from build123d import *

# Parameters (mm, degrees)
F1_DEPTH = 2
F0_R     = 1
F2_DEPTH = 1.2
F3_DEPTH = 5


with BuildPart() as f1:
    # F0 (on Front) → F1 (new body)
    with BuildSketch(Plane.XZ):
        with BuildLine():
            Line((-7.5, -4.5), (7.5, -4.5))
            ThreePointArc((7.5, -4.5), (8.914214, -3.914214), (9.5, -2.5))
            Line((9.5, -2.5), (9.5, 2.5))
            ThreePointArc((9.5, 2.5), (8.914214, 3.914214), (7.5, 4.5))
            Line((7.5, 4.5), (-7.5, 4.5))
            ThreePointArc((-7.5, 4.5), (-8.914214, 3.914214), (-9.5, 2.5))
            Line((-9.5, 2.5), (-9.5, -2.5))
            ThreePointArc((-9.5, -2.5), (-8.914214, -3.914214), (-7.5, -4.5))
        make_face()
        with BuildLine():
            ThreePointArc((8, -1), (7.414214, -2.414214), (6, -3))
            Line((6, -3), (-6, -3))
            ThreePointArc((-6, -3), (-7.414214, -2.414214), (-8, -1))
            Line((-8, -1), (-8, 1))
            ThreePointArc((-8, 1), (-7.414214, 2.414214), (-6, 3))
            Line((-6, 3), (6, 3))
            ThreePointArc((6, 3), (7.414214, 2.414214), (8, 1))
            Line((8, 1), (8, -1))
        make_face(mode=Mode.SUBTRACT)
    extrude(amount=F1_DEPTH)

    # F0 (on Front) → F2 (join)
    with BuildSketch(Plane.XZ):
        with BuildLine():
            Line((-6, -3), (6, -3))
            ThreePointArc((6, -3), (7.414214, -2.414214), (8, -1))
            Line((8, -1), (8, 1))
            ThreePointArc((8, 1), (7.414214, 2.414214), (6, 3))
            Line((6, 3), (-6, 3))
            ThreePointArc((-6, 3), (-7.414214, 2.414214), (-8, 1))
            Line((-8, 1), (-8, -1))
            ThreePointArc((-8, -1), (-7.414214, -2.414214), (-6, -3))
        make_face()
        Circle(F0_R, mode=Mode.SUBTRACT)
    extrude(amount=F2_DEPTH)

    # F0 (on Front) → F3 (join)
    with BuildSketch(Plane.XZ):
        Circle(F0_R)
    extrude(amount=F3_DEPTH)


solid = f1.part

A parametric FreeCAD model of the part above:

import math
import FreeCAD as App
import Part
import Sketcher
Q = App.Units.Quantity

doc = App.newDocument("Part")
body = doc.addObject("PartDesign::Body", "Body")

# Sketch on XZ plane
sketch1 = doc.addObject("Sketcher::SketchObject", "Sketch")
body.addObject(sketch1)
sketch1.AttachmentSupport = (doc.XZ_Plane, [""])
sketch1.MapMode = "FlatFace"
sketch1.addGeometry(Part.LineSegment(App.Vector(-7.5, -4.5, 0), App.Vector(7.5, -4.5, 0)), False)
sketch1.addGeometry(Part.ArcOfCircle(Part.Circle(App.Vector(7.5, -2.5, 0), App.Vector(0, 0, 1), 2), math.radians(-90), math.radians(0)), False)
sketch1.addGeometry(Part.LineSegment(App.Vector(9.5, -2.5, 0), App.Vector(9.5, 2.5, 0)), False)
sketch1.addGeometry(Part.ArcOfCircle(Part.Circle(App.Vector(7.5, 2.5, 0), App.Vector(0, 0, 1), 2), math.radians(0), math.radians(90)), False)
sketch1.addGeometry(Part.LineSegment(App.Vector(7.5, 4.5, 0), App.Vector(-7.5, 4.5, 0)), False)
sketch1.addGeometry(Part.ArcOfCircle(Part.Circle(App.Vector(-7.5, 2.5, 0), App.Vector(0, 0, 1), 2), math.radians(90), math.radians(180)), False)
sketch1.addGeometry(Part.LineSegment(App.Vector(-9.5, 2.5, 0), App.Vector(-9.5, -2.5, 0)), False)
sketch1.addGeometry(Part.ArcOfCircle(Part.Circle(App.Vector(-7.5, -2.5, 0), App.Vector(0, 0, 1), 2), math.radians(180), math.radians(270)), False)
sketch1.addGeometry(Part.LineSegment(App.Vector(8, 1, 0), App.Vector(8, -1, 0)), False)
sketch1.addGeometry(Part.ArcOfCircle(Part.Circle(App.Vector(6, -1, 0), App.Vector(0, 0, 1), 2), math.radians(-90), math.radians(0)), False)
sketch1.addGeometry(Part.LineSegment(App.Vector(6, -3, 0), App.Vector(-6, -3, 0)), False)
sketch1.addGeometry(Part.ArcOfCircle(Part.Circle(App.Vector(-6, -1, 0), App.Vector(0, 0, 1), 2), math.radians(180), math.radians(270)), False)
sketch1.addGeometry(Part.LineSegment(App.Vector(-8, -1, 0), App.Vector(-8, 1, 0)), False)
sketch1.addGeometry(Part.ArcOfCircle(Part.Circle(App.Vector(-6, 1, 0), App.Vector(0, 0, 1), 2), math.radians(90), math.radians(180)), False)
sketch1.addGeometry(Part.LineSegment(App.Vector(-6, 3, 0), App.Vector(6, 3, 0)), False)
sketch1.addGeometry(Part.ArcOfCircle(Part.Circle(App.Vector(6, 1, 0), App.Vector(0, 0, 1), 2), math.radians(0), math.radians(90)), False)
sketch1.addConstraint(Sketcher.Constraint("Tangent", 0, 2, 1, 1))
sketch1.addConstraint(Sketcher.Constraint("Tangent", 1, 2, 2, 1))
sketch1.addConstraint(Sketcher.Constraint("Tangent", 2, 2, 3, 1))
sketch1.addConstraint(Sketcher.Constraint("Tangent", 3, 2, 4, 1))
sketch1.addConstraint(Sketcher.Constraint("Tangent", 4, 2, 5, 1))
sketch1.addConstraint(Sketcher.Constraint("Tangent", 5, 2, 6, 1))
sketch1.addConstraint(Sketcher.Constraint("Tangent", 6, 2, 7, 1))
sketch1.addConstraint(Sketcher.Constraint("Tangent", 7, 2, 0, 1))
sketch1.addConstraint(Sketcher.Constraint("Tangent", 8, 2, 9, 2))
sketch1.addConstraint(Sketcher.Constraint("Tangent", 9, 1, 10, 1))
sketch1.addConstraint(Sketcher.Constraint("Tangent", 10, 2, 11, 2))
sketch1.addConstraint(Sketcher.Constraint("Tangent", 11, 1, 12, 1))
sketch1.addConstraint(Sketcher.Constraint("Tangent", 12, 2, 13, 2))
sketch1.addConstraint(Sketcher.Constraint("Tangent", 13, 1, 14, 1))
sketch1.addConstraint(Sketcher.Constraint("Tangent", 14, 2, 15, 2))
sketch1.addConstraint(Sketcher.Constraint("Tangent", 15, 1, 8, 1))
sketch1.addConstraint(Sketcher.Constraint("Horizontal", 0))
sketch1.addConstraint(Sketcher.Constraint("Vertical", 2))
sketch1.addConstraint(Sketcher.Constraint("Horizontal", 4))
sketch1.addConstraint(Sketcher.Constraint("Vertical", 6))
sketch1.addConstraint(Sketcher.Constraint("Vertical", 8))
sketch1.addConstraint(Sketcher.Constraint("Horizontal", 10))
sketch1.addConstraint(Sketcher.Constraint("Vertical", 12))
sketch1.addConstraint(Sketcher.Constraint("Horizontal", 14))
sketch1.addConstraint(Sketcher.Constraint("Equal", 1, 3))
sketch1.addConstraint(Sketcher.Constraint("Equal", 3, 5))
sketch1.addConstraint(Sketcher.Constraint("Equal", 5, 7))
sketch1.addConstraint(Sketcher.Constraint("Equal", 7, 9))
sketch1.addConstraint(Sketcher.Constraint("Equal", 9, 11))
sketch1.addConstraint(Sketcher.Constraint("Equal", 11, 13))
sketch1.addConstraint(Sketcher.Constraint("Equal", 13, 15))
sketch1.addConstraint(Sketcher.Constraint("Symmetric", 1, 3, 5, 3, -1, 1))
sketch1.addConstraint(Sketcher.Constraint("Symmetric", 9, 3, 13, 3, -1, 1))
sketch1.addConstraint(Sketcher.Constraint("Radius", 1, Q("1.999999 mm")))
sketch1.addConstraint(Sketcher.Constraint("DistanceX", 0, 1, 0, 2, Q("15 mm")))
sketch1.addConstraint(Sketcher.Constraint("DistanceX", 10, 2, 10, 1, Q("12 mm")))
sketch1.addConstraint(Sketcher.Constraint("DistanceY", 2, 1, 2, 2, Q("5 mm")))
sketch1.addConstraint(Sketcher.Constraint("DistanceY", 8, 2, 8, 1, Q("2 mm")))
pad1 = doc.addObject("PartDesign::Pad", "Pad")
body.addObject(pad1)
pad1.Profile = sketch1
pad1.Length = 2

# Sketch on XZ plane
sketch2 = doc.addObject("Sketcher::SketchObject", "Sketch001")
body.addObject(sketch2)
sketch2.AttachmentSupport = (doc.XZ_Plane, [""])
sketch2.MapMode = "FlatFace"
sketch2.addGeometry(Part.LineSegment(App.Vector(-6, -3, 0), App.Vector(6, -3, 0)), False)
sketch2.addGeometry(Part.ArcOfCircle(Part.Circle(App.Vector(6, -1, 0), App.Vector(0, 0, 1), 2), math.radians(-90), math.radians(0)), False)
sketch2.addGeometry(Part.LineSegment(App.Vector(8, -1, 0), App.Vector(8, 1, 0)), False)
sketch2.addGeometry(Part.ArcOfCircle(Part.Circle(App.Vector(6, 1, 0), App.Vector(0, 0, 1), 2), math.radians(0), math.radians(90)), False)
sketch2.addGeometry(Part.LineSegment(App.Vector(6, 3, 0), App.Vector(-6, 3, 0)), False)
sketch2.addGeometry(Part.ArcOfCircle(Part.Circle(App.Vector(-6, 1, 0), App.Vector(0, 0, 1), 2), math.radians(90), math.radians(180)), False)
sketch2.addGeometry(Part.LineSegment(App.Vector(-8, 1, 0), App.Vector(-8, -1, 0)), False)
sketch2.addGeometry(Part.ArcOfCircle(Part.Circle(App.Vector(-6, -1, 0), App.Vector(0, 0, 1), 2), math.radians(180), math.radians(270)), False)
sketch2.addGeometry(Part.Circle(App.Vector(0, 0, 0), App.Vector(0, 0, 1), 1), False)
sketch2.addConstraint(Sketcher.Constraint("Tangent", 0, 2, 1, 1))
sketch2.addConstraint(Sketcher.Constraint("Tangent", 1, 2, 2, 1))
sketch2.addConstraint(Sketcher.Constraint("Tangent", 2, 2, 3, 1))
sketch2.addConstraint(Sketcher.Constraint("Tangent", 3, 2, 4, 1))
sketch2.addConstraint(Sketcher.Constraint("Tangent", 4, 2, 5, 1))
sketch2.addConstraint(Sketcher.Constraint("Tangent", 5, 2, 6, 1))
sketch2.addConstraint(Sketcher.Constraint("Tangent", 6, 2, 7, 1))
sketch2.addConstraint(Sketcher.Constraint("Tangent", 7, 2, 0, 1))
sketch2.addConstraint(Sketcher.Constraint("Horizontal", 0))
sketch2.addConstraint(Sketcher.Constraint("Vertical", 2))
sketch2.addConstraint(Sketcher.Constraint("Horizontal", 4))
sketch2.addConstraint(Sketcher.Constraint("Vertical", 6))
sketch2.addConstraint(Sketcher.Constraint("Coincident", 8, 3, -1, 1))
sketch2.addConstraint(Sketcher.Constraint("Equal", 1, 3))
sketch2.addConstraint(Sketcher.Constraint("Equal", 3, 5))
sketch2.addConstraint(Sketcher.Constraint("Equal", 5, 7))
sketch2.addConstraint(Sketcher.Constraint("Symmetric", 1, 3, 5, 3, -1, 1))
sketch2.addConstraint(Sketcher.Constraint("Diameter", 8, Q("2 mm")))
sketch2.addConstraint(Sketcher.Constraint("Radius", 1, Q("1.999999 mm")))
sketch2.addConstraint(Sketcher.Constraint("DistanceX", 0, 1, 0, 2, Q("12 mm")))
sketch2.addConstraint(Sketcher.Constraint("DistanceY", 2, 1, 2, 2, Q("2 mm")))
pad2 = doc.addObject("PartDesign::Pad", "Pad001")
body.addObject(pad2)
pad2.Profile = sketch2
pad2.Length = 1.2

# Sketch on XZ plane
sketch3 = doc.addObject("Sketcher::SketchObject", "Sketch002")
body.addObject(sketch3)
sketch3.AttachmentSupport = (doc.XZ_Plane, [""])
sketch3.MapMode = "FlatFace"
sketch3.addGeometry(Part.Circle(App.Vector(0, 0, 0), App.Vector(0, 0, 1), 1), False)
sketch3.addConstraint(Sketcher.Constraint("Coincident", 0, 3, -1, 1))
sketch3.addConstraint(Sketcher.Constraint("Diameter", 0, Q("2 mm")))
pad3 = doc.addObject("PartDesign::Pad", "Pad002")
body.addObject(pad3)
pad3.Profile = sketch3
pad3.Length = 5

doc.recompute()
